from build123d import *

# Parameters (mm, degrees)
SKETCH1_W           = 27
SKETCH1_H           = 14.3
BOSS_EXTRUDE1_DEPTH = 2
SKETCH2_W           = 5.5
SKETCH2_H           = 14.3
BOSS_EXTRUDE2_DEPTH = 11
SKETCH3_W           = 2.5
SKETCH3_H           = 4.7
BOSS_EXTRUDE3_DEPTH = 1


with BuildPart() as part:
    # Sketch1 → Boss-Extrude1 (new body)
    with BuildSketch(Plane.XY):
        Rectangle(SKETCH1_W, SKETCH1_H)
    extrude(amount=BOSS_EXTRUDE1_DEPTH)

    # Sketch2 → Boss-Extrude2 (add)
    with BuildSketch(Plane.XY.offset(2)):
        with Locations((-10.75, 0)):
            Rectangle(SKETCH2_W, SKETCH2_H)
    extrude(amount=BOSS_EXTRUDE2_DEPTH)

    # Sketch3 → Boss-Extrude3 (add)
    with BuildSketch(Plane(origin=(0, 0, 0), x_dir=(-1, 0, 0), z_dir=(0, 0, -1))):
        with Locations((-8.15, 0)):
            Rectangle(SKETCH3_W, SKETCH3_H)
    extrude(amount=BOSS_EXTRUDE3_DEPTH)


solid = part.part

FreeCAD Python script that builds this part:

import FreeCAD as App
import Part
import Sketcher
from FreeCAD import Vector
Q = App.Units.Quantity


def add_polygon(sketch, points):
    """Adds a closed chain of lines whose ends are joined by coincident constraints."""
    first, n = sketch.GeometryCount, len(points)
    for a, b in zip(points, points[1:] + points[:1]):
        sketch.addGeometry(Part.LineSegment(App.Vector(*a, 0), App.Vector(*b, 0)), False)
    for i in range(n):
        sketch.addConstraint(Sketcher.Constraint("Coincident", first + i, 2, first + (i + 1) % n, 1))

doc = App.newDocument("Part")
body = doc.addObject("PartDesign::Body", "Body")

sketch1 = doc.addObject("Sketcher::SketchObject", "Sketch")
body.addObject(sketch1)
sketch1.AttachmentSupport = (doc.XY_Plane, [""])
sketch1.MapMode = "FlatFace"
add_polygon(sketch1, [(-13.5, 7.15), (-13.5, -7.15), (13.5, -7.15), (13.5, 7.15)])
sketch1.addConstraint([
    Sketcher.Constraint("Vertical", 0),
    Sketcher.Constraint("Horizontal", 1),
    Sketcher.Constraint("Vertical", 2),
    Sketcher.Constraint("Horizontal", 3),
    Sketcher.Constraint("Symmetric", 0, 2, 2, 2, -1, 1),
    Sketcher.Constraint("DistanceX", 1, 1, 1, 2, Q("27 mm")),
    Sketcher.Constraint("DistanceY", 0, 2, 0, 1, Q("14.3 mm")),
])
pad1 = doc.addObject("PartDesign::Pad", "Pad")
body.addObject(pad1)
pad1.Profile = sketch1
pad1.Length = 2

sketch2 = doc.addObject("Sketcher::SketchObject", "Sketch001")
body.addObject(sketch2)
sketch2.AttachmentSupport = (doc.XY_Plane, [""])
sketch2.MapMode = "FlatFace"
sketch2.AttachmentOffset = App.Placement(Vector(0, 0, 2), App.Rotation())
add_polygon(sketch2, [(-13.5, 7.15), (-13.5, -7.15), (-8, -7.15), (-8, 7.15)])
sketch2.addConstraint([
    Sketcher.Constraint("Vertical", 0),
    Sketcher.Constraint("Horizontal", 1),
    Sketcher.Constraint("Vertical", 2),
    Sketcher.Constraint("Horizontal", 3),
    Sketcher.Constraint("DistanceX", 1, 1, 1, 2, Q("5.5 mm")),
    Sketcher.Constraint("DistanceY", 0, 2, 0, 1, Q("14.3 mm")),
    Sketcher.Constraint("DistanceX", 1, 2, -1, 1, Q("8 mm")),
    Sketcher.Constraint("DistanceY", 0, 2, -1, 1, Q("7.15 mm")),
])
pad2 = doc.addObject("PartDesign::Pad", "Pad001")
body.addObject(pad2)
pad2.Profile = sketch2
pad2.Length = 11

sketch3 = doc.addObject("Sketcher::SketchObject", "Sketch002")
body.addObject(sketch3)
sketch3.AttachmentSupport = (doc.XY_Plane, [""])
sketch3.MapMode = "FlatFace"
add_polygon(sketch3, [(9.4, 2.35), (9.4, -2.35), (6.9, -2.35), (6.9, 2.35)])
sketch3.addConstraint([
    Sketcher.Constraint("Vertical", 0),
    Sketcher.Constraint("Horizontal", 1),
    Sketcher.Constraint("Vertical", 2),
    Sketcher.Constraint("Horizontal", 3),
    Sketcher.Constraint("DistanceX", 1, 2, 1, 1, Q("2.5 mm")),
    Sketcher.Constraint("DistanceY", 0, 2, 0, 1, Q("4.7 mm")),
    Sketcher.Constraint("DistanceX", -1, 1, 0, 2, Q("9.4 mm")),
    Sketcher.Constraint("DistanceY", 0, 2, -1, 1, Q("2.35 mm")),
])
pad3 = doc.addObject("PartDesign::Pad", "Pad002")
body.addObject(pad3)
pad3.Profile = sketch3
pad3.Length = 1
pad3.Reversed = True

doc.recompute()
